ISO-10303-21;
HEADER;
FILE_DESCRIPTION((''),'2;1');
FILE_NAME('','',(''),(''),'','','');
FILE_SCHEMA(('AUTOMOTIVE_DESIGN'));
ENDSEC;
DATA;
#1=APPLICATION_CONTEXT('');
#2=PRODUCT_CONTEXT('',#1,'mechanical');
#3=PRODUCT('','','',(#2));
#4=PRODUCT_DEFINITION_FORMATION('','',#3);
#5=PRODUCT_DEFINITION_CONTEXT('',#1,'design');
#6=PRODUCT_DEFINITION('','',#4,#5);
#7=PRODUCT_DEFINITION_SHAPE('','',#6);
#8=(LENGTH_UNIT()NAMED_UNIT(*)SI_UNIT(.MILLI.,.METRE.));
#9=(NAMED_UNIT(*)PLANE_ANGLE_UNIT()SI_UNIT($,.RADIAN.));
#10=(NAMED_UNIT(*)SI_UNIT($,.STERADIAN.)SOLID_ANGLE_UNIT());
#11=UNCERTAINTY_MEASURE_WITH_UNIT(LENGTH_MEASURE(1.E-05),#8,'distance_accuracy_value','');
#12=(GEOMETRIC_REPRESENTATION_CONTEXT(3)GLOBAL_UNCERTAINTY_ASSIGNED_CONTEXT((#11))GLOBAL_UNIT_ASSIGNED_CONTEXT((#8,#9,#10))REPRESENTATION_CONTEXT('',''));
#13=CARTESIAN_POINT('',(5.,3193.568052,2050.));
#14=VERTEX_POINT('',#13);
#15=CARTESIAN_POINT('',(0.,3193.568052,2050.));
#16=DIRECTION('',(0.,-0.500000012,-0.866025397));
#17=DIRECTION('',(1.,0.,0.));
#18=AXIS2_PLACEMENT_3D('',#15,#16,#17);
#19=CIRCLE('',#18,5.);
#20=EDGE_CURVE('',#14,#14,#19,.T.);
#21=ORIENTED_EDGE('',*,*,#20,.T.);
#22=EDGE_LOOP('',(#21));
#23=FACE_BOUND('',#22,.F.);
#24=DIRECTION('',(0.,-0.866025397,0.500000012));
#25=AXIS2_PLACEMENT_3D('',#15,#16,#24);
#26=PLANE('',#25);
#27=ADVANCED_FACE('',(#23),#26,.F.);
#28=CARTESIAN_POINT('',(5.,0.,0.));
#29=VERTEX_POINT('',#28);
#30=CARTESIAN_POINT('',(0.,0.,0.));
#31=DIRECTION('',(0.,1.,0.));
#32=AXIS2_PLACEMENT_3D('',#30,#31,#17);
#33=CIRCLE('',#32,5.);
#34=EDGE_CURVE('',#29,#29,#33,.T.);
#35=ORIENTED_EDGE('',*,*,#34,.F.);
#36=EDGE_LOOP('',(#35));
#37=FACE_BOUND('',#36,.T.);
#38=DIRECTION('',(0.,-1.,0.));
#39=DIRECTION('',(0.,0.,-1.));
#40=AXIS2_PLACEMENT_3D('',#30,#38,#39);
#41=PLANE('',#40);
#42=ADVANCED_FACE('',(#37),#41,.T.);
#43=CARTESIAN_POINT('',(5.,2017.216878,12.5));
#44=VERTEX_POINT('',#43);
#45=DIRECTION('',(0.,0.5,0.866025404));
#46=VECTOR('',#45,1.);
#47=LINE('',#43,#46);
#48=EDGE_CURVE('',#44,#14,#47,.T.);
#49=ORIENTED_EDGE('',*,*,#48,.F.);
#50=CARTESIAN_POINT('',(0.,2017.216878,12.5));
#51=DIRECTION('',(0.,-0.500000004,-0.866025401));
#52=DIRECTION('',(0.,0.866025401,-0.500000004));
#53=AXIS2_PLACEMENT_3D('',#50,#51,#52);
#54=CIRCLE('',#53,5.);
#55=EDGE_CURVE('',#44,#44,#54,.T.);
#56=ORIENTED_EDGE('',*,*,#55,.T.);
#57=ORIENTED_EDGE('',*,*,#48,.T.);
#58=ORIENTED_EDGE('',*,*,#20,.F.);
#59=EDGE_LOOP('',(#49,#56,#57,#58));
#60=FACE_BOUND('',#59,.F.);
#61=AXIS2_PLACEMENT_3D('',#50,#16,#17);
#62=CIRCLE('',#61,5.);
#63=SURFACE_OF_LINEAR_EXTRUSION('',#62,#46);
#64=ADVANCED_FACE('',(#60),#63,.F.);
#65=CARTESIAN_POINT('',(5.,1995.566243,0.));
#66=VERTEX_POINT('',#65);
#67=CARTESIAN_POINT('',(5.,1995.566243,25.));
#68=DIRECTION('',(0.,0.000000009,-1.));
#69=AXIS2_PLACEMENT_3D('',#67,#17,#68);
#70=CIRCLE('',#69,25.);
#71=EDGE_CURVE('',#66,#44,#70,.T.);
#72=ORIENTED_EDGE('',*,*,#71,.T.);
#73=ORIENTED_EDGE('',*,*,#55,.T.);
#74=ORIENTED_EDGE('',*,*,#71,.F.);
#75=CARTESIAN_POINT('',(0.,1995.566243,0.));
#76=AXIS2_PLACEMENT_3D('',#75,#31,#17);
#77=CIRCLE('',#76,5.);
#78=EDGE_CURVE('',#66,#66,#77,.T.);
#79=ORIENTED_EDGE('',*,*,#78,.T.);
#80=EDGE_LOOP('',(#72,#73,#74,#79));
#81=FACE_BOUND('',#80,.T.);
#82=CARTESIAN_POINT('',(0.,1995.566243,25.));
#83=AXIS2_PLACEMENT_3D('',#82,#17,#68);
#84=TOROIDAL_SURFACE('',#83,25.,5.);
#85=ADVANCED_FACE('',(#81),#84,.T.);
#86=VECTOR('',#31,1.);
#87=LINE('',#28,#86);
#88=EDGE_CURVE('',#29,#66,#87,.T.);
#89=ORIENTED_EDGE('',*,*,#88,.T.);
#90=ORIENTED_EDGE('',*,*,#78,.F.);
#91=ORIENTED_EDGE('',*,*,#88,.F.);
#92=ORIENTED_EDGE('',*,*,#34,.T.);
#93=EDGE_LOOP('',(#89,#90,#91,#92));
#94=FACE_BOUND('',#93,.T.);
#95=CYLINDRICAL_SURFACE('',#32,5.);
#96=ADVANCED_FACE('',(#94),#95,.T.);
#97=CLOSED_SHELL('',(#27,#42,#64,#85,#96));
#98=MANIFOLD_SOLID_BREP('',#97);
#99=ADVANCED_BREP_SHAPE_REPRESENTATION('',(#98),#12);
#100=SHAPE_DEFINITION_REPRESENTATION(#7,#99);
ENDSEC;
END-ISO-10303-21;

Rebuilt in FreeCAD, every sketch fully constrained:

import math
import FreeCAD as App
import Part
import Sketcher

V = App.Vector
Q = App.Units.Quantity

doc = App.newDocument("Part")
body = doc.addObject("PartDesign::Body", "Body")

# Sketch on XZ plane
sketch1 = body.newObject("Sketcher::SketchObject", "Sketch")
sketch1.AttachmentSupport = (doc.getObject("XZ_Plane"), [""])
sketch1.MapMode = "FlatFace"
sketch1.addGeometry(Part.Circle(V(0, 0, 0), V(0, 0, 1), 5), False)
sketch1.addConstraint(Sketcher.Constraint("Coincident", 0, 3, -1, 1))
sketch1.addConstraint(Sketcher.Constraint("Diameter", 0, Q("10 mm")))

# Sketch on YZ plane
sketch2 = body.newObject("Sketcher::SketchObject", "Sketch001")
sketch2.AttachmentSupport = (doc.getObject("YZ_Plane"), [""])
sketch2.MapMode = "FlatFace"
sketch2.addGeometry(Part.LineSegment(V(0, 0, 0), V(1996, 0, 0)), False)
sketch2.addGeometry(Part.ArcOfCircle(Part.Circle(V(1996, 25, 0), V(0, 0, 1), 25), math.radians(-90), math.radians(-30)), False)
sketch2.addGeometry(Part.LineSegment(V(2017, 12, 0), V(3194, 2050, 0)), False)
sketch2.addConstraint(Sketcher.Constraint("Tangent", 0, 2, 1, 1))
sketch2.addConstraint(Sketcher.Constraint("Tangent", 1, 2, 2, 1))
sketch2.addConstraint(Sketcher.Constraint("Horizontal", 0))
sketch2.addConstraint(Sketcher.Constraint("Coincident", 0, 1, -1, 1))
sketch2.addConstraint(Sketcher.Constraint("Radius", 1, Q("25 mm")))
sketch2.addConstraint(Sketcher.Constraint("Angle", 2, Q("60 deg")))
sketch2.addConstraint(Sketcher.Constraint("DistanceY", -1, 1, 2, 2, Q("2050 mm")))
sketch2.addConstraint(Sketcher.Constraint("DistanceX", 0, 1, 0, 2, Q("1995.566243 mm")))
doc.recompute()

additivepipe = body.newObject("PartDesign::AdditivePipe", "AdditivePipe")
additivepipe.Profile = sketch1
additivepipe.Spine = (sketch2, ["Edge1", "Edge2", "Edge3"])

doc.recompute()
